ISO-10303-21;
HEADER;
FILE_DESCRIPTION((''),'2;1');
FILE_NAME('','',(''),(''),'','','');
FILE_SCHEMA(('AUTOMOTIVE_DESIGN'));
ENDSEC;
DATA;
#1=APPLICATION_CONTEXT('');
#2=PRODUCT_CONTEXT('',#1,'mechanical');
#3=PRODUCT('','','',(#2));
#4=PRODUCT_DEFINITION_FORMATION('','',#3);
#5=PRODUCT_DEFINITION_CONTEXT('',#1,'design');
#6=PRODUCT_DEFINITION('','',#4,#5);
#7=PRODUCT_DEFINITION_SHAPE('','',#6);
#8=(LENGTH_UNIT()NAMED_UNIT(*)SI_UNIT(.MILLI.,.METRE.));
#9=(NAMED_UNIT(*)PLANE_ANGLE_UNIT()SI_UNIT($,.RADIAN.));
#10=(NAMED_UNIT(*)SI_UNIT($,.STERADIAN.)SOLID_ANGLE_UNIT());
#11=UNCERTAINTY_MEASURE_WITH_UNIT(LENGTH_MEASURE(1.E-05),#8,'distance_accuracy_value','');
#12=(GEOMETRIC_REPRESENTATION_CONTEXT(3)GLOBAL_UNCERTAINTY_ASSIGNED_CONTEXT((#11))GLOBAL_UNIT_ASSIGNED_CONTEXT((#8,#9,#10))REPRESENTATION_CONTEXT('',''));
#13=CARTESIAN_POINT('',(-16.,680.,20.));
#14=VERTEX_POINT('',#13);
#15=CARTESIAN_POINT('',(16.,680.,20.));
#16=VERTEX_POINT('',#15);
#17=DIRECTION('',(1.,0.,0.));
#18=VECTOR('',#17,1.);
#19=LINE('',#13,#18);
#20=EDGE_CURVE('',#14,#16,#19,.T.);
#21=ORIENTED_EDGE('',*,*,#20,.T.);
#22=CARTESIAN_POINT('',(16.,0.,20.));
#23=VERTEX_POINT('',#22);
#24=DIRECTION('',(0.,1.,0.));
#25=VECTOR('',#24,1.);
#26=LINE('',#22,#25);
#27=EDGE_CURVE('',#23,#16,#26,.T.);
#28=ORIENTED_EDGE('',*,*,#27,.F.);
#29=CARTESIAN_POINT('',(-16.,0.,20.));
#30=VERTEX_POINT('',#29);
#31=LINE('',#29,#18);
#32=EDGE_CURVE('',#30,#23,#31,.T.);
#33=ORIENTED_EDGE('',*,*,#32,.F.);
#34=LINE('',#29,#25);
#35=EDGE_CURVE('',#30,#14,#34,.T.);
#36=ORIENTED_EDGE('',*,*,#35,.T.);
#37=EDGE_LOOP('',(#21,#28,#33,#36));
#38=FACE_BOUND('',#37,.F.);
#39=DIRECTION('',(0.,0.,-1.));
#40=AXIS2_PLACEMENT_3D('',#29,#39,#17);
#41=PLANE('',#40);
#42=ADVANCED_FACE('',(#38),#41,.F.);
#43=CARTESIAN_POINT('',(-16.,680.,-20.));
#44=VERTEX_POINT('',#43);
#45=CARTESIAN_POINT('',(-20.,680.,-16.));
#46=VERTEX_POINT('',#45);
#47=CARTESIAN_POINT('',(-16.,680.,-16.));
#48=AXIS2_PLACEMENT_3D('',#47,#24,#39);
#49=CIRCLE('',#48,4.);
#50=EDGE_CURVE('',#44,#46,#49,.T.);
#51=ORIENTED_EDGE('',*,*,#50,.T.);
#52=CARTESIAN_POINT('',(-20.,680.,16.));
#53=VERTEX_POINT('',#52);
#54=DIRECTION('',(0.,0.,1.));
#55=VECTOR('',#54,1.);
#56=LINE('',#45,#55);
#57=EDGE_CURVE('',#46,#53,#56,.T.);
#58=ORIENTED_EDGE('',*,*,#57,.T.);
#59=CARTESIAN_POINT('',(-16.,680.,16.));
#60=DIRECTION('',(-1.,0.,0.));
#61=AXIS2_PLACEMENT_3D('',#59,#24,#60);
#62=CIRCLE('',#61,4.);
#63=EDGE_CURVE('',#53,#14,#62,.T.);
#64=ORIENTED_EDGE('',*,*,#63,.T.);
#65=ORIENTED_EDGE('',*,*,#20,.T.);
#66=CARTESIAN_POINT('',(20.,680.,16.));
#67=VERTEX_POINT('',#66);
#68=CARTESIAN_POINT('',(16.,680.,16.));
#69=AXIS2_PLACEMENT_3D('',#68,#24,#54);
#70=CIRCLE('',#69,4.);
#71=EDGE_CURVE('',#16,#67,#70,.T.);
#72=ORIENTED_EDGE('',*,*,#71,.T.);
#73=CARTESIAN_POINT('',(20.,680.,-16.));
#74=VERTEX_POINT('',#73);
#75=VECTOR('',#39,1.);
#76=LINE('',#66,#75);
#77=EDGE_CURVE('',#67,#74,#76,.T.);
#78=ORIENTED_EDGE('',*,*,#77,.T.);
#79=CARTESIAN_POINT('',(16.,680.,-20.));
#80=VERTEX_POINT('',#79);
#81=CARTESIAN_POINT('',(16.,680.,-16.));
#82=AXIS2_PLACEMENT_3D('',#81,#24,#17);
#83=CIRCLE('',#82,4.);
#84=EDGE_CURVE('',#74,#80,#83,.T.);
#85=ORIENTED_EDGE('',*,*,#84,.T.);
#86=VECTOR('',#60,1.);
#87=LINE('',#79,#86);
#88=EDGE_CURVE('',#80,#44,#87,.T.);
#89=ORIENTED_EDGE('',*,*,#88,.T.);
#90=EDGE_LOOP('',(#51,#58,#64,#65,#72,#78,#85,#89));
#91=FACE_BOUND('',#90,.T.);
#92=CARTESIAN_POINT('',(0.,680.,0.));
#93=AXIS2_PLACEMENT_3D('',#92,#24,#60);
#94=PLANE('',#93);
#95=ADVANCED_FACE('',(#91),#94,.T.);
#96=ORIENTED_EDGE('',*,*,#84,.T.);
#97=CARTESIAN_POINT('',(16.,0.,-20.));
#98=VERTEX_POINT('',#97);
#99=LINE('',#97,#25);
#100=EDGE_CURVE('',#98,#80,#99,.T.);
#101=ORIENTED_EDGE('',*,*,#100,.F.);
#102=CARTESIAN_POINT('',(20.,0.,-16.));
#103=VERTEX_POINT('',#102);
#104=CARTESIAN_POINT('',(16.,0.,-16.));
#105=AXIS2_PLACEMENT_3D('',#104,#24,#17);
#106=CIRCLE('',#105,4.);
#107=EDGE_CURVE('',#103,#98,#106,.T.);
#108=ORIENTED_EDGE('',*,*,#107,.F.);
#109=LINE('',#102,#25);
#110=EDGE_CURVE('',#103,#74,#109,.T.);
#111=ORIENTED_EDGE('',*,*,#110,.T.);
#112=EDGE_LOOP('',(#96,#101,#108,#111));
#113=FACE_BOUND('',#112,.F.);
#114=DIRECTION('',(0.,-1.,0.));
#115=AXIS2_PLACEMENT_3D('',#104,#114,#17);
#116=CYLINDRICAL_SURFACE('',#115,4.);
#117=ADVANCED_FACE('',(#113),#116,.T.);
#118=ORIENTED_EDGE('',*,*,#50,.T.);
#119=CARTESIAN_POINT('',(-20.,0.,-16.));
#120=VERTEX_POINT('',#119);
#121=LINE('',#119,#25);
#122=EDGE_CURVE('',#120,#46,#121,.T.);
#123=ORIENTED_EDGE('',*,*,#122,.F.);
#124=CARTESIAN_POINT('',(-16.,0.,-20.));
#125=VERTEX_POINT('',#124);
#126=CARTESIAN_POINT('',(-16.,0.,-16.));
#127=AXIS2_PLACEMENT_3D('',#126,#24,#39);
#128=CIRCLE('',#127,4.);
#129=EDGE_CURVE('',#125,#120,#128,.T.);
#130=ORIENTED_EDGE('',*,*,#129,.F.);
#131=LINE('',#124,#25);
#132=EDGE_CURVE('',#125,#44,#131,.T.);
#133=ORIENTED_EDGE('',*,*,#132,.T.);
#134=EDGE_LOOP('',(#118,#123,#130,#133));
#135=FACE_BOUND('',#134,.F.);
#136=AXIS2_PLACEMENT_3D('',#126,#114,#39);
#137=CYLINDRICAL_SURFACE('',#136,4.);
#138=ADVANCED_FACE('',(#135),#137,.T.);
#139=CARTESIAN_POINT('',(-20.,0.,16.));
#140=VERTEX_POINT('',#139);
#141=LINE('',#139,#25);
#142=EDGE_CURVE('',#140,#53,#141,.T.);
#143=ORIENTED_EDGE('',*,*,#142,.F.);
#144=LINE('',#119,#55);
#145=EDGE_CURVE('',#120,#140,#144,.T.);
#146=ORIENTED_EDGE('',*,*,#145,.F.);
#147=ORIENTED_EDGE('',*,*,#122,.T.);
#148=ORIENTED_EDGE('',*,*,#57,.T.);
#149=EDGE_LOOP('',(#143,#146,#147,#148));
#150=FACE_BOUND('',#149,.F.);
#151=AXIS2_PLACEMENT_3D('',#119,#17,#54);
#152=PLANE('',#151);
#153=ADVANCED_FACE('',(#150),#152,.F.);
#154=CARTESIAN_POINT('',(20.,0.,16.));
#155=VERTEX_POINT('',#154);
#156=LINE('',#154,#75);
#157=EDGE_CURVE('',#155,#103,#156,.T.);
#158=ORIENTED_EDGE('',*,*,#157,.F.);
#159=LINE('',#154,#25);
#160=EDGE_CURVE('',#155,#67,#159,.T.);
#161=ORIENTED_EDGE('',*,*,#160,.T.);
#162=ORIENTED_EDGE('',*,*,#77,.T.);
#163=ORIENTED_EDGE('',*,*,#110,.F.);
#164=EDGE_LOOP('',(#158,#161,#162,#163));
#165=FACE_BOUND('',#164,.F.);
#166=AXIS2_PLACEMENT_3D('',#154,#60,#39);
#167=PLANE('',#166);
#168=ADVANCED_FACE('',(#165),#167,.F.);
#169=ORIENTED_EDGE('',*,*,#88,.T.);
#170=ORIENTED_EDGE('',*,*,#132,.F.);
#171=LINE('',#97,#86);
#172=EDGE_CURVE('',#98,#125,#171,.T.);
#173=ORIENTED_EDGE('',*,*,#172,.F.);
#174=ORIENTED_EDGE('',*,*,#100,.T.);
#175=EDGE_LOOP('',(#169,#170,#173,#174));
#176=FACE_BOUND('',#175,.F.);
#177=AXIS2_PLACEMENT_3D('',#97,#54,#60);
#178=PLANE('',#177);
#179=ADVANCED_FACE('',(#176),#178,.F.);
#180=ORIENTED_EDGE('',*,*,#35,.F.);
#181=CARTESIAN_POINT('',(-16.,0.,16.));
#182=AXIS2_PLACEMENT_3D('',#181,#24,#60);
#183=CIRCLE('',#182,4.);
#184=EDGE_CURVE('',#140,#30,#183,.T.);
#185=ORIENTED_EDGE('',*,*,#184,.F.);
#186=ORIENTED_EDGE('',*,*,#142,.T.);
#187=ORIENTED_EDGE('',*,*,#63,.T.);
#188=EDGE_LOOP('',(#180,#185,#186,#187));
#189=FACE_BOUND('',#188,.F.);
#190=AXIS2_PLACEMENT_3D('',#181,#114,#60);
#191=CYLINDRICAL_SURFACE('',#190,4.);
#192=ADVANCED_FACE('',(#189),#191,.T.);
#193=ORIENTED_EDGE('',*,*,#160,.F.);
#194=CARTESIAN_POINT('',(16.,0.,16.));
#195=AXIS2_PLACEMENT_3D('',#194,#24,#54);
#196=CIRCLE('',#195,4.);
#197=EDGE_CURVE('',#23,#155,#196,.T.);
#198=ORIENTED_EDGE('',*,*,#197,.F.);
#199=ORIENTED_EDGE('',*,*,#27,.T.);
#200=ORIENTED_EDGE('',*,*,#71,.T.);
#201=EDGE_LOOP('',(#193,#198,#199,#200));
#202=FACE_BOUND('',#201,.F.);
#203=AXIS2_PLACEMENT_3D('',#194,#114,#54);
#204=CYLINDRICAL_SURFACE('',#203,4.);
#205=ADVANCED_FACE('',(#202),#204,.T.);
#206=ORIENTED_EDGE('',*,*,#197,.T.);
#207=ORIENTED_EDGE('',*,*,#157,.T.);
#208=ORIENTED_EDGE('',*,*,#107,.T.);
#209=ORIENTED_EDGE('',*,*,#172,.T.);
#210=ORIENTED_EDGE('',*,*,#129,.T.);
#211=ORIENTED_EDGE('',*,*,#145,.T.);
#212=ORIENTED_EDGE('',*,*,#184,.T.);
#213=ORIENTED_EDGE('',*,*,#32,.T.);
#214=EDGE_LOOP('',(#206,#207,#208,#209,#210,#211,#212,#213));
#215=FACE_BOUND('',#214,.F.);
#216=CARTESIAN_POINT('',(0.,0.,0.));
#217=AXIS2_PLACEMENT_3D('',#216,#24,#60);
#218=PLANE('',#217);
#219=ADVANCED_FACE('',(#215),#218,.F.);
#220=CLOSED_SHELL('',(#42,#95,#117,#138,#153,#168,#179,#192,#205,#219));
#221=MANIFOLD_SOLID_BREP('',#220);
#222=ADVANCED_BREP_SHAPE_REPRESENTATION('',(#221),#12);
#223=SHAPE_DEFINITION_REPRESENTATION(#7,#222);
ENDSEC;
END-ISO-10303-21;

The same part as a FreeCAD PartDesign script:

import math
import FreeCAD as App
import Part
import Sketcher
Q = App.Units.Quantity

doc = App.newDocument("Part")
body = doc.addObject("PartDesign::Body", "Body")

# Sketch on XZ plane
sketch1 = doc.addObject("Sketcher::SketchObject", "Sketch")
body.addObject(sketch1)
sketch1.AttachmentSupport = (doc.XZ_Plane, [""])
sketch1.MapMode = "FlatFace"
sketch1.addGeometry([
    Part.ArcOfCircle(Part.Circle(App.Vector(-16, 16, 0), App.Vector(0, 0, 1), 4), math.radians(90), math.radians(180)),  # 0
    Part.LineSegment(App.Vector(-16, 20, 0), App.Vector(16, 20, 0)),  # 1
    Part.ArcOfCircle(Part.Circle(App.Vector(16, 16, 0), App.Vector(0, 0, 1), 4), math.radians(0), math.radians(90)),  # 2
    Part.LineSegment(App.Vector(20, 16, 0), App.Vector(20, -16, 0)),  # 3
    Part.ArcOfCircle(Part.Circle(App.Vector(16, -16, 0), App.Vector(0, 0, 1), 4), math.radians(-90), math.radians(0)),  # 4
    Part.LineSegment(App.Vector(16, -20, 0), App.Vector(-16, -20, 0)),  # 5
    Part.ArcOfCircle(Part.Circle(App.Vector(-16, -16, 0), App.Vector(0, 0, 1), 4), math.radians(180), math.radians(270)),  # 6
    Part.LineSegment(App.Vector(-20, -16, 0), App.Vector(-20, 16, 0)),  # 7
], False)
sketch1.addConstraint([
    Sketcher.Constraint("Tangent", 0, 1, 1, 1),
    Sketcher.Constraint("Tangent", 1, 2, 2, 2),
    Sketcher.Constraint("Tangent", 2, 1, 3, 1),
    Sketcher.Constraint("Tangent", 3, 2, 4, 2),
    Sketcher.Constraint("Tangent", 4, 1, 5, 1),
    Sketcher.Constraint("Tangent", 5, 2, 6, 2),
    Sketcher.Constraint("Tangent", 6, 1, 7, 1),
    Sketcher.Constraint("Tangent", 7, 2, 0, 2),
    Sketcher.Constraint("Horizontal", 1),
    Sketcher.Constraint("Vertical", 3),
    Sketcher.Constraint("Horizontal", 5),
    Sketcher.Constraint("Vertical", 7),
    Sketcher.Constraint("Equal", 0, 2),
    Sketcher.Constraint("Equal", 2, 4),
    Sketcher.Constraint("Equal", 4, 6),
    Sketcher.Constraint("Symmetric", 0, 3, 4, 3, -1, 1),
    Sketcher.Constraint("Equal", 5, 3),
    Sketcher.Constraint("Radius", 0, Q("4 mm")),
    Sketcher.Constraint("DistanceX", 1, 1, 1, 2, Q("32 mm")),
])
pad1 = doc.addObject("PartDesign::Pad", "Pad")
body.addObject(pad1)
pad1.Profile = sketch1
pad1.Length = 680
pad1.Reversed = True

doc.recompute()
